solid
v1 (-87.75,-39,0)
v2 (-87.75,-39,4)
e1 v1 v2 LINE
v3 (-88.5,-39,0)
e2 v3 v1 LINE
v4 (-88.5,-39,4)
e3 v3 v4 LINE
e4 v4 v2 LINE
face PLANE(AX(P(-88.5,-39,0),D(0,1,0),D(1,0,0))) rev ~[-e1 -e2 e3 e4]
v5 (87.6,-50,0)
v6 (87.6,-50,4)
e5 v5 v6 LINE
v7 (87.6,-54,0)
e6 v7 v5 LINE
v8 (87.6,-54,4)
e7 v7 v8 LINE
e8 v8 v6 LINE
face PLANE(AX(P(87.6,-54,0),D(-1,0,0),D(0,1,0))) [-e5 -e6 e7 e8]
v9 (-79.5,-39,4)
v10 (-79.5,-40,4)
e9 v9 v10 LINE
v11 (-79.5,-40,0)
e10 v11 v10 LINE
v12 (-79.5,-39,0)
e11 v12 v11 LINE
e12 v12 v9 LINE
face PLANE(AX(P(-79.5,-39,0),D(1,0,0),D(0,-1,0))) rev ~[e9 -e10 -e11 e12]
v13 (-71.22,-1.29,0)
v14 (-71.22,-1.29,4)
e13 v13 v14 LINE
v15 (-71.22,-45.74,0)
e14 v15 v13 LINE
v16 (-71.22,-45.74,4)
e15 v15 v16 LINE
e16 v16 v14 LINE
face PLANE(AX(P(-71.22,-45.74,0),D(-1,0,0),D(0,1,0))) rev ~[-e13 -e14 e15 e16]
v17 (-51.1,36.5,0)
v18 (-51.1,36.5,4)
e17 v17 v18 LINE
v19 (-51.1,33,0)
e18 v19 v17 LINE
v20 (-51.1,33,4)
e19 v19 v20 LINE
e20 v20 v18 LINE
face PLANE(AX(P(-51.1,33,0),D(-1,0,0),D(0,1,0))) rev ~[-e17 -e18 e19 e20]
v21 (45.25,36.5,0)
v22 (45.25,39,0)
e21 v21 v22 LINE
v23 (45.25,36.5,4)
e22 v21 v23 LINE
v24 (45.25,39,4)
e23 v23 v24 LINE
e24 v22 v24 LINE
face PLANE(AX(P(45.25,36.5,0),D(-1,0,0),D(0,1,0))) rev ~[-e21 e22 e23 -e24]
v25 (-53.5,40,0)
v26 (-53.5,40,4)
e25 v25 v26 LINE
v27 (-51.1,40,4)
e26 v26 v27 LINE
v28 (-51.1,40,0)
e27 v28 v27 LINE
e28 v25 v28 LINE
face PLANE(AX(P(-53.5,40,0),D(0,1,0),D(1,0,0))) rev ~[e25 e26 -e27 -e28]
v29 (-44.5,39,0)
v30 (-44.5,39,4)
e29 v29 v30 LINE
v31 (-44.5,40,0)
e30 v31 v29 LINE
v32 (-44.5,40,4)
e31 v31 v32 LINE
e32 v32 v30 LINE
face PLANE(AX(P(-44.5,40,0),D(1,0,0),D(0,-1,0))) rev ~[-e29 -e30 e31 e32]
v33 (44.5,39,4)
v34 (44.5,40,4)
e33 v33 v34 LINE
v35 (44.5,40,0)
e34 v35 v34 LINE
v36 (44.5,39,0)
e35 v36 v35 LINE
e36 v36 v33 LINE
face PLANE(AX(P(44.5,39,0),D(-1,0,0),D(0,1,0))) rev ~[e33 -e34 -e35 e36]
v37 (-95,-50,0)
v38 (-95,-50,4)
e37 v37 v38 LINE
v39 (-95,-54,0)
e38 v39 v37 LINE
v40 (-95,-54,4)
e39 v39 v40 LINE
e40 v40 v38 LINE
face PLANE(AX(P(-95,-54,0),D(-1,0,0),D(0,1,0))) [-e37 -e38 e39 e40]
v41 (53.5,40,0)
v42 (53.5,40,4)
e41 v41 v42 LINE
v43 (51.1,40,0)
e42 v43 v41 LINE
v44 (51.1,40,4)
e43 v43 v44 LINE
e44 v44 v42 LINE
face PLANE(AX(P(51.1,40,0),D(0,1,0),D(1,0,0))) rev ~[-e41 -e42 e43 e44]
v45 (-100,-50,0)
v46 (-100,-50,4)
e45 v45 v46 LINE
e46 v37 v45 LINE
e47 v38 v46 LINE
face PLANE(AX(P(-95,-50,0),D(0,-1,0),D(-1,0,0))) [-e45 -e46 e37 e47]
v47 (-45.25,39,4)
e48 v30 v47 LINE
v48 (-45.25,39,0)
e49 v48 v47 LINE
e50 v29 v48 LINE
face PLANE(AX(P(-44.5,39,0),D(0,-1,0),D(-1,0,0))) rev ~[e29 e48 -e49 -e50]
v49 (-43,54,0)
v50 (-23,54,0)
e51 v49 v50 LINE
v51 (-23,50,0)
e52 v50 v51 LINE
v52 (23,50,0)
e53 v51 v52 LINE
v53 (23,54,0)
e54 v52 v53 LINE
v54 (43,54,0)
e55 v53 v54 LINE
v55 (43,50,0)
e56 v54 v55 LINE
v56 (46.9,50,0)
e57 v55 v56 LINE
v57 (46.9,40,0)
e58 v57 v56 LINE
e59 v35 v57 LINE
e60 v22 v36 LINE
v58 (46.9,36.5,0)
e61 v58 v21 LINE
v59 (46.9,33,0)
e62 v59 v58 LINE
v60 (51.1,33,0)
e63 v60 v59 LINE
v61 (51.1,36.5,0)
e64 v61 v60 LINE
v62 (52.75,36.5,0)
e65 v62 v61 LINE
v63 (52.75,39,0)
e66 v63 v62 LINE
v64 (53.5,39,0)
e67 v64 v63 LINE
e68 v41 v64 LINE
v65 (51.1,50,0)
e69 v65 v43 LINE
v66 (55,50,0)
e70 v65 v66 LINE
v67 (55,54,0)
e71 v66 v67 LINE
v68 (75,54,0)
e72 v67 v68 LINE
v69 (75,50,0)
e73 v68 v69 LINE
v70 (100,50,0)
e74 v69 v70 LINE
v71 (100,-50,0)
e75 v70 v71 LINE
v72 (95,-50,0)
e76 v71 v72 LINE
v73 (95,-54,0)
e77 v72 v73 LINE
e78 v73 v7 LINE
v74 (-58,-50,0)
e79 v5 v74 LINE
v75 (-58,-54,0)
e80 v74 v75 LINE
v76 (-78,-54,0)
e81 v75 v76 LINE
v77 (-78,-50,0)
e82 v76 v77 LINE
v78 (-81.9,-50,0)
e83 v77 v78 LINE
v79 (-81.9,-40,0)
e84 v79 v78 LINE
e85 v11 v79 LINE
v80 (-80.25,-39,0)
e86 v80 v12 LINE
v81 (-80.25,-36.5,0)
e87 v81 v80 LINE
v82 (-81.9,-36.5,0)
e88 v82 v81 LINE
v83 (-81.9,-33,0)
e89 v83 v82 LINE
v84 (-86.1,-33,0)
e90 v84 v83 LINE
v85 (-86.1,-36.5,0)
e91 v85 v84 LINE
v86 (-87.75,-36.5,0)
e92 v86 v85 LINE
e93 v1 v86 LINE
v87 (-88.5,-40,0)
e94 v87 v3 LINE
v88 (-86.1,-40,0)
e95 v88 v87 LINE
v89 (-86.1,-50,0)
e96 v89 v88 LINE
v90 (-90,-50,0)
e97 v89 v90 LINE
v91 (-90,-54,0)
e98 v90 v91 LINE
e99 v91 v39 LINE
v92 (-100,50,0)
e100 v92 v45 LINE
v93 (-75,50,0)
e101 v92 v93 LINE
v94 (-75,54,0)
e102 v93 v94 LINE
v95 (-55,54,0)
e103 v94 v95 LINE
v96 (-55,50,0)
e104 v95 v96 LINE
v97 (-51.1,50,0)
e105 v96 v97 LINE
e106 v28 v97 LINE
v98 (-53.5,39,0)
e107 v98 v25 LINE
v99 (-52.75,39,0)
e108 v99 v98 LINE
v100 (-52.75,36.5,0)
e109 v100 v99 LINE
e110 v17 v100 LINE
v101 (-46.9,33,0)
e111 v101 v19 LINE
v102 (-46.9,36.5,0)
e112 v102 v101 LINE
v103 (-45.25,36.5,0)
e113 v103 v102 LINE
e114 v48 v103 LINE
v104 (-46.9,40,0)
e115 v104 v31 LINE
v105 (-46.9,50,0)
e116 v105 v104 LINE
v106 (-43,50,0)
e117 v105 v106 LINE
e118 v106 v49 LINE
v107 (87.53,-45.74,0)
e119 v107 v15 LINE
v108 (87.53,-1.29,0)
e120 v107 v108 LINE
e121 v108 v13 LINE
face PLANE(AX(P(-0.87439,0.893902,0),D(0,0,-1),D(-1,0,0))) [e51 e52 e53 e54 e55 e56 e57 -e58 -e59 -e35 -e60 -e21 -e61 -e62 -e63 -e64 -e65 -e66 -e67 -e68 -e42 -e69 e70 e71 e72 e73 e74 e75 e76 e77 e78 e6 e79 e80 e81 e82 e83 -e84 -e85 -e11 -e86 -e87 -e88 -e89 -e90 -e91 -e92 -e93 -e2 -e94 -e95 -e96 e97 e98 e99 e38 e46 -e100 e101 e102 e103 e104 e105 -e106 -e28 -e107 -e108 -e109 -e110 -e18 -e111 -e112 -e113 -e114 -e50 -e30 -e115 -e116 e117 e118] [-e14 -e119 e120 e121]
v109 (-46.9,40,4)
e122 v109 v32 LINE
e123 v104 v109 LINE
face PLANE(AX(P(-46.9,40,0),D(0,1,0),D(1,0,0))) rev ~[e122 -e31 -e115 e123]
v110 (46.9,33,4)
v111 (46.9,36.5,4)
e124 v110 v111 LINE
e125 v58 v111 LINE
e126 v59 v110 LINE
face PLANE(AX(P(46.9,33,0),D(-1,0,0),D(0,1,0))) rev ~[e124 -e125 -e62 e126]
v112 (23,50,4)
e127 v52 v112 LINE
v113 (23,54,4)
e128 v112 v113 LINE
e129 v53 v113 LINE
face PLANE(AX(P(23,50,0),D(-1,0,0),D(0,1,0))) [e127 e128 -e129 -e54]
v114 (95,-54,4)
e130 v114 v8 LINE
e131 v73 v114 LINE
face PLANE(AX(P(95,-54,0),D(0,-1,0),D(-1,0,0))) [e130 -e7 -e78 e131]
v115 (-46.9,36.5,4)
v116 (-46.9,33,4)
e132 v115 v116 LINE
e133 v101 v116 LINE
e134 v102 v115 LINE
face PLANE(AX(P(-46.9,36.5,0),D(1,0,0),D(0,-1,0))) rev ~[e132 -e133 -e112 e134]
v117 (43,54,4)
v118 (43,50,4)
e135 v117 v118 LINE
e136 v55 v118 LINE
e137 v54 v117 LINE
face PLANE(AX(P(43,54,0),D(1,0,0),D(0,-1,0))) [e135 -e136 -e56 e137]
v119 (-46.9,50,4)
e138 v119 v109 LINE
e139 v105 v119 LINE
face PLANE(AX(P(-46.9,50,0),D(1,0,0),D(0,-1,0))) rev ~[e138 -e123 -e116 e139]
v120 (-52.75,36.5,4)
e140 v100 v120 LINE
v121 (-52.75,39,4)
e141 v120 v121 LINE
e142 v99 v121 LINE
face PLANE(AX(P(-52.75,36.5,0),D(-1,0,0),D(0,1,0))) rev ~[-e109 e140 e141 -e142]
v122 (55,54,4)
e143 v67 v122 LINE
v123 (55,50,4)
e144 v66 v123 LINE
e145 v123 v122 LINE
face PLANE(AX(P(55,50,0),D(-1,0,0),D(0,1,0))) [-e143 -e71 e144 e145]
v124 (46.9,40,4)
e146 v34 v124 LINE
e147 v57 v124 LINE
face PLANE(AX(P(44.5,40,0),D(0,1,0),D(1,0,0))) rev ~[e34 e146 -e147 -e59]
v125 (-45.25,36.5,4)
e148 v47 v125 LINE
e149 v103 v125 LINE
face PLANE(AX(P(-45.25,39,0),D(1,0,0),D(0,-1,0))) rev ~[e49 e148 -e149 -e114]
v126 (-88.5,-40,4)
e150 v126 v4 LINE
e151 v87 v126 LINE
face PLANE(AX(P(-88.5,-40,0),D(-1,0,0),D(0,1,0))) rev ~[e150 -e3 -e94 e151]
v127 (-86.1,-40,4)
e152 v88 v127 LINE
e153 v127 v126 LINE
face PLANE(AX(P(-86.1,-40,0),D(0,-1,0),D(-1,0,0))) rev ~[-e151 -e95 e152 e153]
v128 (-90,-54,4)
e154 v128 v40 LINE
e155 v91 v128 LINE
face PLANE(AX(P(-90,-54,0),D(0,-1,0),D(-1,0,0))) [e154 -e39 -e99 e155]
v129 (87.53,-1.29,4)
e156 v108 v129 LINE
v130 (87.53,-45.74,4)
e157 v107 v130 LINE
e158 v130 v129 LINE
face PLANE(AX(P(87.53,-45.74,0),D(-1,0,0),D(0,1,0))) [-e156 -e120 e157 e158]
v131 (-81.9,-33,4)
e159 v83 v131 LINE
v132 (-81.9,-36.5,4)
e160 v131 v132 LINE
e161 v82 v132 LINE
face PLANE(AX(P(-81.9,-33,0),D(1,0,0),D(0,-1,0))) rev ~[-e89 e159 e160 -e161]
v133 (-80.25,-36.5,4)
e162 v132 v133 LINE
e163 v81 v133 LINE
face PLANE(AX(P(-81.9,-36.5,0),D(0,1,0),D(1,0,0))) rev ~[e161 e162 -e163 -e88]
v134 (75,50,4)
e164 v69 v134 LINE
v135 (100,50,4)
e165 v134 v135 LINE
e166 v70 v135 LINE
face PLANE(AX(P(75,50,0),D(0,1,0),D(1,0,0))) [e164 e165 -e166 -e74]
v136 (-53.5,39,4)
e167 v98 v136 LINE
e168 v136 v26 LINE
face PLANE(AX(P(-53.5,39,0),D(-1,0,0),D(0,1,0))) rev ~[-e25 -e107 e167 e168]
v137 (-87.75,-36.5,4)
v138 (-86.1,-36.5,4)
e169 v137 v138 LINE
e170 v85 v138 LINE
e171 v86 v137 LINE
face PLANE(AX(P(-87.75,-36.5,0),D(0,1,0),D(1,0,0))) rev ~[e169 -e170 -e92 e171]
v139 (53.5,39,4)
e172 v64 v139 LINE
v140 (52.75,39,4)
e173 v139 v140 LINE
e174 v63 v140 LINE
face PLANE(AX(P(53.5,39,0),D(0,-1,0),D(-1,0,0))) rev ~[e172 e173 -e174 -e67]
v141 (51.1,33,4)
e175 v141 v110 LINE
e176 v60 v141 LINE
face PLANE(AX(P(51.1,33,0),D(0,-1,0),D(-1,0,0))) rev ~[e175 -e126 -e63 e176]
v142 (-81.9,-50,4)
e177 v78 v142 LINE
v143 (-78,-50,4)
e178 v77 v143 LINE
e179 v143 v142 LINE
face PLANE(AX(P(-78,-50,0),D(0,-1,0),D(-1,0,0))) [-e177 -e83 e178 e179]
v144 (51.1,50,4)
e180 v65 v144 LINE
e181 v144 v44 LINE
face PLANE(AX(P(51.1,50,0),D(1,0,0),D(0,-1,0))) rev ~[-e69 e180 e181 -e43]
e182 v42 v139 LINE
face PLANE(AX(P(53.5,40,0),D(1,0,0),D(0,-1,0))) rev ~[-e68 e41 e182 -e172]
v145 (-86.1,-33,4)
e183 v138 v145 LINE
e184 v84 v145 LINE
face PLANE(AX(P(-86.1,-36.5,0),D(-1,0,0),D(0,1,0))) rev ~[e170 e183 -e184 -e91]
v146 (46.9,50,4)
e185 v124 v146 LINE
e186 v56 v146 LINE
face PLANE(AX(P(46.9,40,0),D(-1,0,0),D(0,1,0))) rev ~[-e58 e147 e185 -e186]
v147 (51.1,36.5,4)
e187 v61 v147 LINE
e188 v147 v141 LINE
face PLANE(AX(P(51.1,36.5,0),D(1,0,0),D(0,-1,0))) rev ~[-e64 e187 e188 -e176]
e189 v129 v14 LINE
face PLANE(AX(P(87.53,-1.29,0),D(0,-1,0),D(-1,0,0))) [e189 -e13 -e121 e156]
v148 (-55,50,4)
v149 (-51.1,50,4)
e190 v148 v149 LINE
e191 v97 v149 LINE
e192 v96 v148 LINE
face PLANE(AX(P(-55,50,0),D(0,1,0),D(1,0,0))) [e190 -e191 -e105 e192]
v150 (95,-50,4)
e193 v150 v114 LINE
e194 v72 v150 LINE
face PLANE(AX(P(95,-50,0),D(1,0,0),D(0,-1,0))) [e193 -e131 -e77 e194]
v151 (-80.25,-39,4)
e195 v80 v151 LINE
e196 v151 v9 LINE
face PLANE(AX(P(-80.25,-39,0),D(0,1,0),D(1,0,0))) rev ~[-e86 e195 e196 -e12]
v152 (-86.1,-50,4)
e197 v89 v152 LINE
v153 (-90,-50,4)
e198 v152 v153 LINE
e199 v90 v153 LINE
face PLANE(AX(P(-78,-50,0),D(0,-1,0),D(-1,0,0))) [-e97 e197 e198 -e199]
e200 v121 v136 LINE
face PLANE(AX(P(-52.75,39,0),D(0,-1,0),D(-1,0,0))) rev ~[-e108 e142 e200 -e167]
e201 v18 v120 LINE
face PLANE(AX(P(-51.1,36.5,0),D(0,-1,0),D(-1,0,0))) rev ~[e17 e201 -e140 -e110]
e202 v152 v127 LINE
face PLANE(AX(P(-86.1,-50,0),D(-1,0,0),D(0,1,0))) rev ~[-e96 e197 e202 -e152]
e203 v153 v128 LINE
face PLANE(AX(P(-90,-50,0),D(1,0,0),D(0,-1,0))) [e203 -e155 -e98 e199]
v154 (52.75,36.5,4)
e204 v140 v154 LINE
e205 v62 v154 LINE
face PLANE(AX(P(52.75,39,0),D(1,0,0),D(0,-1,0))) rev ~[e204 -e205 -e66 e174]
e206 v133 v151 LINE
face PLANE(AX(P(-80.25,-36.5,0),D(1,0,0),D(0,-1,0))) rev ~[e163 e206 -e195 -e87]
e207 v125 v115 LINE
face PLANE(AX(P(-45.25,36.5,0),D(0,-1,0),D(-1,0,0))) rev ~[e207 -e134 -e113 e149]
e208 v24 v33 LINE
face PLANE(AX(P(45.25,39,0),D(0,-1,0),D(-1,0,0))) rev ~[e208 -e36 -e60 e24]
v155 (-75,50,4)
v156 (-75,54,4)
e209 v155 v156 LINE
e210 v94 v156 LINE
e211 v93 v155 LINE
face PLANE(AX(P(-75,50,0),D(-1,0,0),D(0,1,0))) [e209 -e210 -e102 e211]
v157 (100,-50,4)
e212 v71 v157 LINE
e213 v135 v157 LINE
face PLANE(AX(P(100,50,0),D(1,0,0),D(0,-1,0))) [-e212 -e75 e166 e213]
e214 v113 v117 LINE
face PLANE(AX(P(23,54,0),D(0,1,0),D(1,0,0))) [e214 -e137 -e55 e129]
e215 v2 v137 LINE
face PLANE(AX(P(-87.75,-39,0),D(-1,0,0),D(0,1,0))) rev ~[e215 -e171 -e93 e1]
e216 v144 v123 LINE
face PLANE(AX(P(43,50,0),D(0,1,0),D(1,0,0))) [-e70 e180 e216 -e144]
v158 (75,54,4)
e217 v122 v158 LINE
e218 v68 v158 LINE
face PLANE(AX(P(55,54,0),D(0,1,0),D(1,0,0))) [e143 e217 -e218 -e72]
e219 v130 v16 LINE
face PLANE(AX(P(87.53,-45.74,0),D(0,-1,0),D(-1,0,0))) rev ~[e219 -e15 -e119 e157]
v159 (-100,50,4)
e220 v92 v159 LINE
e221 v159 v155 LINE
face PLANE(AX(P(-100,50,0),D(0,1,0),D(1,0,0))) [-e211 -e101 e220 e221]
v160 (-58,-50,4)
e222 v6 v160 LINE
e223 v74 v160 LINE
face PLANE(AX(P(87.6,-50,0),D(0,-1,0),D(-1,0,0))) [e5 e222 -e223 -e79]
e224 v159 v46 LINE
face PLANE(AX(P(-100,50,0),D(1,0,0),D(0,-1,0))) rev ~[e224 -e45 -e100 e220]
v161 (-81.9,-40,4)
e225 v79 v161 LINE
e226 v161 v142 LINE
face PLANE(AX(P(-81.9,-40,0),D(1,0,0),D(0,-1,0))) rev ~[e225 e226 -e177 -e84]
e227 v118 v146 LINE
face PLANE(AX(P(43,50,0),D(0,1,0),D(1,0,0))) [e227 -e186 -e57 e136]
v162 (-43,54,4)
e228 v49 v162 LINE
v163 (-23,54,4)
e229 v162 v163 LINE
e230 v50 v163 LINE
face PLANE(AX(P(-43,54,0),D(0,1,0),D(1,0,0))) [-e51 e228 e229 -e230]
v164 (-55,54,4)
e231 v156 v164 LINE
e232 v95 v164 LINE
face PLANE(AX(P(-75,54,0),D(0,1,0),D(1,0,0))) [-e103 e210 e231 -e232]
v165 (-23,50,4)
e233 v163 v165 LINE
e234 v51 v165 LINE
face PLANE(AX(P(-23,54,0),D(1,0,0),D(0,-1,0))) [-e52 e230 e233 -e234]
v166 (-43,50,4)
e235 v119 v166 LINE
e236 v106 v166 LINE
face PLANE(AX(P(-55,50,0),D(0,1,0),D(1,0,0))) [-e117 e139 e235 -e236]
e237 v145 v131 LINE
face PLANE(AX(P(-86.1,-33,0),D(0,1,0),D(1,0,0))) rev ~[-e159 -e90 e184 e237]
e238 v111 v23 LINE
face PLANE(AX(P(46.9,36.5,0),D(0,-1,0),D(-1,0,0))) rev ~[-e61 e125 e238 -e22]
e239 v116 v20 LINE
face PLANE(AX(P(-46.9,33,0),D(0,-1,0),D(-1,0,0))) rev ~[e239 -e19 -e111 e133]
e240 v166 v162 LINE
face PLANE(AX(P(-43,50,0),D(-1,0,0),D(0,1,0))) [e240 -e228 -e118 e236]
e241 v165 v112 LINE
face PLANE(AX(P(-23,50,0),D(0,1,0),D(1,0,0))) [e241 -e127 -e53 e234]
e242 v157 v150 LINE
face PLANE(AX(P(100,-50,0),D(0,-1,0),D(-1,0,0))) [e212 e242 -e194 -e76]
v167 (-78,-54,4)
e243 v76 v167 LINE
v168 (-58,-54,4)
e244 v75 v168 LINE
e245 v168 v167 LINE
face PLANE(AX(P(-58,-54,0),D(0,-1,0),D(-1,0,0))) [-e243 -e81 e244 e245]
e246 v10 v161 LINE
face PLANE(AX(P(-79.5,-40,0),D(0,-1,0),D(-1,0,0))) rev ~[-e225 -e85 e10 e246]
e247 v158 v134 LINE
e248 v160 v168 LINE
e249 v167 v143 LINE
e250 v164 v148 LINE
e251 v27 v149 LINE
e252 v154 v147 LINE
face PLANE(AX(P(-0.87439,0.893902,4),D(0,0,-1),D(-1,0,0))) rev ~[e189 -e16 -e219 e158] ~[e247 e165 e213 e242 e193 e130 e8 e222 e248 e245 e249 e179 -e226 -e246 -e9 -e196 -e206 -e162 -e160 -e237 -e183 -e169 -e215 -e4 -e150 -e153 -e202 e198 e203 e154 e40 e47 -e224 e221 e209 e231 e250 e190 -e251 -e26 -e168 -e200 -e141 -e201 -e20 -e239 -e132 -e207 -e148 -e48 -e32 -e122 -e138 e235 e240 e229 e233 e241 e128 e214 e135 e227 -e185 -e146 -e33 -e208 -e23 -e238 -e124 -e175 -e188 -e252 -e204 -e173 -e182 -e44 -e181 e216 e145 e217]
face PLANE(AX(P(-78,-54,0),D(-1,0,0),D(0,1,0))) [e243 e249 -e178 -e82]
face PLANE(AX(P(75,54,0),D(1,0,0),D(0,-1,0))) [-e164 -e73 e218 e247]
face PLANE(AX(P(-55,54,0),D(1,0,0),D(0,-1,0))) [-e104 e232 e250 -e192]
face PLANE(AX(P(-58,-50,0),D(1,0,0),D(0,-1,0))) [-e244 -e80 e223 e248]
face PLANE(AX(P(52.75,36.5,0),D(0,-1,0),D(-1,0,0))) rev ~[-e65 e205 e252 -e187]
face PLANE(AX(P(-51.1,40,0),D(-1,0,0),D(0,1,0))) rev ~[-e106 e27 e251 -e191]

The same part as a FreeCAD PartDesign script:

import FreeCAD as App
import Part
import Sketcher
from FreeCAD import Vector

doc = App.newDocument("Part")
params = doc.addObject("Spreadsheet::Sheet", "Params")
for row, (alias, value) in enumerate([
    ("sketch1_width", "12 mm"),
    ("sketch1_width2", "20 mm"),
    ("sketch1_width3", "25 mm"),
    ("sketch1_width4", "10 mm"),
    ("sketch1_width5", "5 mm"),
    ("pad1_length", "4 mm"),
    ("sketch2_width", "158.75 mm"),
    ("sketch2_height", "44.45 mm"),
    ("pocket1_length", "6 mm"),
    ("sketch3_height", "10 mm"),
    ("sketch3_height2", "1 mm"),
    ("sketch3_width", "4.2 mm"),
    ("sketch3_width2", "2.4 mm"),
    ("sketch3_height3", "2.5 mm"),
    ("pocket2_length", "10 mm"),
    ("sketch4_width", "5 mm"),
    ("sketch4_height", "4 mm"),
    ("pocket3_length", "10 mm"),
], start=1):
    params.set(f"A{row}", alias)
    params.set(f"B{row}", "=" + value)
    params.setAlias(f"B{row}", alias)

body = doc.addObject("PartDesign::Body", "Body")

# Sketch on XY plane
sketch1 = body.newObject("Sketcher::SketchObject", "Sketch")
sketch1.AttachmentSupport = (doc.getObject("XY_Plane"), [""])
sketch1.MapMode = "FlatFace"
sketch1.addGeometry(Part.LineSegment(Vector(-43, 50, 0), Vector(-55, 50, 0)), False)
sketch1.addGeometry(Part.LineSegment(Vector(-55, 50, 0), Vector(-55, 54, 0)), False)
sketch1.addGeometry(Part.LineSegment(Vector(-55, 54, 0), Vector(-75, 54, 0)), False)
sketch1.addGeometry(Part.LineSegment(Vector(-75, 54, 0), Vector(-75, 50, 0)), False)
sketch1.addGeometry(Part.LineSegment(Vector(-75, 50, 0), Vector(-100, 50, 0)), False)
sketch1.addGeometry(Part.LineSegment(Vector(-100, 50, 0), Vector(-100, -54, 0)), False)
sketch1.addGeometry(Part.LineSegment(Vector(-100, -54, 0), Vector(-90, -54, 0)), False)
sketch1.addGeometry(Part.LineSegment(Vector(-90, -54, 0), Vector(-90, -50, 0)), False)
sketch1.addGeometry(Part.LineSegment(Vector(-90, -50, 0), Vector(-78, -50, 0)), False)
sketch1.addGeometry(Part.LineSegment(Vector(-78, -50, 0), Vector(-78, -54, 0)), False)
sketch1.addGeometry(Part.LineSegment(Vector(-78, -54, 0), Vector(-58, -54, 0)), False)
sketch1.addGeometry(Part.LineSegment(Vector(-58, -54, 0), Vector(-58, -50, 0)), False)
sketch1.addGeometry(Part.LineSegment(Vector(-58, -50, 0), Vector(87.6, -50, 0)), False)
sketch1.addGeometry(Part.LineSegment(Vector(87.6, -50, 0), Vector(87.6, -54, 0)), False)
sketch1.addGeometry(Part.LineSegment(Vector(87.6, -54, 0), Vector(95, -54, 0)), False)
sketch1.addGeometry(Part.LineSegment(Vector(95, -54, 0), Vector(95, -50, 0)), False)
sketch1.addGeometry(Part.LineSegment(Vector(95, -50, 0), Vector(100, -50, 0)), False)
sketch1.addGeometry(Part.LineSegment(Vector(100, -50, 0), Vector(100, 50, 0)), False)
sketch1.addGeometry(Part.LineSegment(Vector(100, 50, 0), Vector(75, 50, 0)), False)
sketch1.addGeometry(Part.LineSegment(Vector(75, 50, 0), Vector(75, 54, 0)), False)
sketch1.addGeometry(Part.LineSegment(Vector(75, 54, 0), Vector(55, 54, 0)), False)
sketch1.addGeometry(Part.LineSegment(Vector(55, 54, 0), Vector(55, 50, 0)), False)
sketch1.addGeometry(Part.LineSegment(Vector(55, 50, 0), Vector(43, 50, 0)), False)
sketch1.addGeometry(Part.LineSegment(Vector(43, 50, 0), Vector(43, 54, 0)), False)
sketch1.addGeometry(Part.LineSegment(Vector(43, 54, 0), Vector(23, 54, 0)), False)
sketch1.addGeometry(Part.LineSegment(Vector(23, 54, 0), Vector(23, 50, 0)), False)
sketch1.addGeometry(Part.LineSegment(Vector(23, 50, 0), Vector(-23, 50, 0)), False)
sketch1.addGeometry(Part.LineSegment(Vector(-23, 50, 0), Vector(-23, 54, 0)), False)
sketch1.addGeometry(Part.LineSegment(Vector(-23, 54, 0), Vector(-43, 54, 0)), False)
sketch1.addGeometry(Part.LineSegment(Vector(-43, 54, 0), Vector(-43, 50, 0)), False)
sketch1.addConstraint(Sketcher.Constraint("Coincident", 0, 2, 1, 1))
sketch1.addConstraint(Sketcher.Constraint("Coincident", 1, 2, 2, 1))
sketch1.addConstraint(Sketcher.Constraint("Coincident", 2, 2, 3, 1))
sketch1.addConstraint(Sketcher.Constraint("Coincident", 3, 2, 4, 1))
sketch1.addConstraint(Sketcher.Constraint("Coincident", 4, 2, 5, 1))
sketch1.addConstraint(Sketcher.Constraint("Coincident", 5, 2, 6, 1))
sketch1.addConstraint(Sketcher.Constraint("Coincident", 6, 2, 7, 1))
sketch1.addConstraint(Sketcher.Constraint("Coincident", 7, 2, 8, 1))
sketch1.addConstraint(Sketcher.Constraint("Coincident", 8, 2, 9, 1))
sketch1.addConstraint(Sketcher.Constraint("Coincident", 9, 2, 10, 1))
sketch1.addConstraint(Sketcher.Constraint("Coincident", 10, 2, 11, 1))
sketch1.addConstraint(Sketcher.Constraint("Coincident", 11, 2, 12, 1))
sketch1.addConstraint(Sketcher.Constraint("Coincident", 12, 2, 13, 1))
sketch1.addConstraint(Sketcher.Constraint("Coincident", 13, 2, 14, 1))
sketch1.addConstraint(Sketcher.Constraint("Coincident", 14, 2, 15, 1))
sketch1.addConstraint(Sketcher.Constraint("Coincident", 15, 2, 16, 1))
sketch1.addConstraint(Sketcher.Constraint("Coincident", 16, 2, 17, 1))
sketch1.addConstraint(Sketcher.Constraint("Coincident", 17, 2, 18, 1))
sketch1.addConstraint(Sketcher.Constraint("Coincident", 18, 2, 19, 1))
sketch1.addConstraint(Sketcher.Constraint("Coincident", 19, 2, 20, 1))
sketch1.addConstraint(Sketcher.Constraint("Coincident", 20, 2, 21, 1))
sketch1.addConstraint(Sketcher.Constraint("Coincident", 21, 2, 22, 1))
sketch1.addConstraint(Sketcher.Constraint("Coincident", 22, 2, 23, 1))
sketch1.addConstraint(Sketcher.Constraint("Coincident", 23, 2, 24, 1))
sketch1.addConstraint(Sketcher.Constraint("Coincident", 24, 2, 25, 1))
sketch1.addConstraint(Sketcher.Constraint("Coincident", 25, 2, 26, 1))
sketch1.addConstraint(Sketcher.Constraint("Coincident", 26, 2, 27, 1))
sketch1.addConstraint(Sketcher.Constraint("Coincident", 27, 2, 28, 1))
sketch1.addConstraint(Sketcher.Constraint("Coincident", 28, 2, 29, 1))
sketch1.addConstraint(Sketcher.Constraint("Coincident", 29, 2, 0, 1))
sketch1.addConstraint(Sketcher.Constraint("Horizontal", 0))
sketch1.addConstraint(Sketcher.Constraint("Vertical", 1))
sketch1.addConstraint(Sketcher.Constraint("Horizontal", 2))
sketch1.addConstraint(Sketcher.Constraint("Vertical", 3))
sketch1.addConstraint(Sketcher.Constraint("Horizontal", 4))
sketch1.addConstraint(Sketcher.Constraint("Vertical", 5))
sketch1.addConstraint(Sketcher.Constraint("Horizontal", 6))
sketch1.addConstraint(Sketcher.Constraint("Vertical", 7))
sketch1.addConstraint(Sketcher.Constraint("Horizontal", 8))
sketch1.addConstraint(Sketcher.Constraint("Vertical", 9))
sketch1.addConstraint(Sketcher.Constraint("Horizontal", 10))
sketch1.addConstraint(Sketcher.Constraint("Vertical", 11))
sketch1.addConstraint(Sketcher.Constraint("Horizontal", 12))
sketch1.addConstraint(Sketcher.Constraint("Vertical", 13))
sketch1.addConstraint(Sketcher.Constraint("Horizontal", 14))
sketch1.addConstraint(Sketcher.Constraint("Vertical", 15))
sketch1.addConstraint(Sketcher.Constraint("Horizontal", 16))
sketch1.addConstraint(Sketcher.Constraint("Vertical", 17))
sketch1.addConstraint(Sketcher.Constraint("Horizontal", 18))
sketch1.addConstraint(Sketcher.Constraint("Vertical", 19))
sketch1.addConstraint(Sketcher.Constraint("Horizontal", 20))
sketch1.addConstraint(Sketcher.Constraint("Vertical", 21))
sketch1.addConstraint(Sketcher.Constraint("Horizontal", 22))
sketch1.addConstraint(Sketcher.Constraint("Vertical", 23))
sketch1.addConstraint(Sketcher.Constraint("Horizontal", 24))
sketch1.addConstraint(Sketcher.Constraint("Vertical", 25))
sketch1.addConstraint(Sketcher.Constraint("Horizontal", 26))
sketch1.addConstraint(Sketcher.Constraint("Vertical", 27))
sketch1.addConstraint(Sketcher.Constraint("Horizontal", 28))
sketch1.addConstraint(Sketcher.Constraint("Vertical", 29))
sketch1.addConstraint(Sketcher.Constraint("Symmetric", 4, 2, 16, 2, -1, 1))
sketch1.addConstraint(Sketcher.Constraint("Symmetric", 3, 2, 18, 2, -2))
sketch1.addConstraint(Sketcher.Constraint("Symmetric", 1, 2, 20, 2, -2))
sketch1.addConstraint(Sketcher.Constraint("Symmetric", 24, 2, 27, 2, -2))
sketch1.addConstraint(Sketcher.Constraint("Symmetric", 22, 2, 29, 2, -2))
sketch1.addConstraint(Sketcher.Constraint("Horizontal", 0, 2, 3, 2))
sketch1.addConstraint(Sketcher.Constraint("Horizontal", 6, 2, 9, 2))
sketch1.addConstraint(Sketcher.Constraint("Horizontal", 8, 2, 11, 2))
sketch1.addConstraint(Sketcher.Constraint("Horizontal", 10, 2, 13, 2))
sketch1.addConstraint(Sketcher.Constraint("Horizontal", 12, 2, 15, 2))
sketch1.addConstraint(Sketcher.Constraint("Horizontal", 20, 2, 23, 2))
sketch1.addConstraint(Sketcher.Constraint("Horizontal", 22, 2, 25, 2))
sketch1.addConstraint(Sketcher.Constraint("Equal", 0, 8))
sketch1.addConstraint(Sketcher.Constraint("Equal", 2, 10))
sketch1.addConstraint(Sketcher.Constraint("Equal", 20, 24))
sketch1.addConstraint(Sketcher.Constraint("Equal", 3, 7))
sketch1.addConstraint(Sketcher.Constraint("DistanceX", 0, 2, 0, 1, 12.0))
sketch1.addConstraint(Sketcher.Constraint("DistanceX", 2, 2, 2, 1, 20.0))
sketch1.addConstraint(Sketcher.Constraint("DistanceX", 4, 2, 4, 1, 25.0))
sketch1.addConstraint(Sketcher.Constraint("DistanceX", 6, 1, 6, 2, 10.0))
sketch1.addConstraint(Sketcher.Constraint("DistanceX", 16, 1, 16, 2, 5.0))
sketch1.addConstraint(Sketcher.Constraint("DistanceX", 26, 2, 26, 1, 46.0))
sketch1.addConstraint(Sketcher.Constraint("DistanceY", 1, 1, 1, 2, 4.0))
sketch1.addConstraint(Sketcher.Constraint("DistanceY", 5, 2, 5, 1, 104.0))
sketch1.addConstraint(Sketcher.Constraint("DistanceX", 12, 1, 12, 2, 145.6))
sketch1.setExpression("Constraints[76]", "Params.sketch1_width")
sketch1.setExpression("Constraints[77]", "Params.sketch1_width2")
sketch1.setExpression("Constraints[78]", "Params.sketch1_width3")
sketch1.setExpression("Constraints[79]", "Params.sketch1_width4")
sketch1.setExpression("Constraints[80]", "Params.sketch1_width5")
pad1 = body.newObject("PartDesign::Pad", "Pad")
pad1.Profile = sketch1
pad1.setExpression("Length", "Params.pad1_length")

# Sketch on XY plane
sketch2 = body.newObject("Sketcher::SketchObject", "Sketch001")
sketch2.AttachmentSupport = (doc.getObject("XY_Plane"), [""])
sketch2.MapMode = "FlatFace"
sketch2.addGeometry(Part.LineSegment(Vector(88, -1, 0), Vector(88, -46, 0)), False)
sketch2.addGeometry(Part.LineSegment(Vector(88, -46, 0), Vector(-71, -46, 0)), False)
sketch2.addGeometry(Part.LineSegment(Vector(-71, -46, 0), Vector(-71, -1, 0)), False)
sketch2.addGeometry(Part.LineSegment(Vector(-71, -1, 0), Vector(88, -1, 0)), False)
sketch2.addConstraint(Sketcher.Constraint("Coincident", 0, 2, 1, 1))
sketch2.addConstraint(Sketcher.Constraint("Coincident", 1, 2, 2, 1))
sketch2.addConstraint(Sketcher.Constraint("Coincident", 2, 2, 3, 1))
sketch2.addConstraint(Sketcher.Constraint("Coincident", 3, 2, 0, 1))
sketch2.addConstraint(Sketcher.Constraint("Vertical", 0))
sketch2.addConstraint(Sketcher.Constraint("Horizontal", 1))
sketch2.addConstraint(Sketcher.Constraint("Vertical", 2))
sketch2.addConstraint(Sketcher.Constraint("Horizontal", 3))
sketch2.addConstraint(Sketcher.Constraint("DistanceX", 1, 2, 1, 1, 158.75))
sketch2.addConstraint(Sketcher.Constraint("DistanceY", 0, 2, 0, 1, 44.45))
sketch2.addConstraint(Sketcher.Constraint("DistanceX", -1, 1, 0, 2, 87.53))
sketch2.addConstraint(Sketcher.Constraint("DistanceY", 0, 2, -1, 1, 45.74))
sketch2.setExpression("Constraints[8]", "Params.sketch2_width")
sketch2.setExpression("Constraints[9]", "Params.sketch2_height")
pocket1 = body.newObject("PartDesign::Pocket", "Pocket")
pocket1.Profile = sketch2
pocket1.setExpression("Length", "Params.pocket1_length")
pocket1.Reversed = True

# Sketch on XY plane
sketch3 = body.newObject("Sketcher::SketchObject", "Sketch002")
sketch3.AttachmentSupport = (doc.getObject("XY_Plane"), [""])
sketch3.MapMode = "FlatFace"
sketch3.addGeometry(Part.LineSegment(Vector(46.9, 50, 0), Vector(51.1, 50, 0)), False)
sketch3.addGeometry(Part.LineSegment(Vector(51.1, 50, 0), Vector(51.1, 40, 0)), False)
sketch3.addGeometry(Part.LineSegment(Vector(51.1, 40, 0), Vector(53.5, 40, 0)), False)
sketch3.addGeometry(Part.LineSegment(Vector(53.5, 40, 0), Vector(53.5, 39, 0)), False)
sketch3.addGeometry(Part.LineSegment(Vector(53.5, 39, 0), Vector(52.8, 39, 0)), False)
sketch3.addGeometry(Part.LineSegment(Vector(52.8, 39, 0), Vector(52.8, 36.5, 0)), False)
sketch3.addGeometry(Part.LineSegment(Vector(52.8, 36.5, 0), Vector(51.1, 36.5, 0)), False)
sketch3.addGeometry(Part.LineSegment(Vector(51.1, 36.5, 0), Vector(51.1, 33, 0)), False)
sketch3.addGeometry(Part.LineSegment(Vector(51.1, 33, 0), Vector(46.9, 33, 0)), False)
sketch3.addGeometry(Part.LineSegment(Vector(46.9, 33, 0), Vector(46.9, 36.5, 0)), False)
sketch3.addGeometry(Part.LineSegment(Vector(46.9, 36.5, 0), Vector(45.2, 36.5, 0)), False)
sketch3.addGeometry(Part.LineSegment(Vector(45.2, 36.5, 0), Vector(45.2, 39, 0)), False)
sketch3.addGeometry(Part.LineSegment(Vector(45.2, 39, 0), Vector(44.5, 39, 0)), False)
sketch3.addGeometry(Part.LineSegment(Vector(44.5, 39, 0), Vector(44.5, 40, 0)), False)
sketch3.addGeometry(Part.LineSegment(Vector(44.5, 40, 0), Vector(46.9, 40, 0)), False)
sketch3.addGeometry(Part.LineSegment(Vector(46.9, 40, 0), Vector(46.9, 50, 0)), False)
sketch3.addGeometry(Part.LineSegment(Vector(-51.1, 40, 0), Vector(-51.1, 50, 0)), False)
sketch3.addGeometry(Part.LineSegment(Vector(-51.1, 50, 0), Vector(-46.9, 50, 0)), False)
sketch3.addGeometry(Part.LineSegment(Vector(-46.9, 50, 0), Vector(-46.9, 40, 0)), False)
sketch3.addGeometry(Part.LineSegment(Vector(-46.9, 40, 0), Vector(-44.5, 40, 0)), False)
sketch3.addGeometry(Part.LineSegment(Vector(-44.5, 40, 0), Vector(-44.5, 39, 0)), False)
sketch3.addGeometry(Part.LineSegment(Vector(-44.5, 39, 0), Vector(-45.2, 39, 0)), False)
sketch3.addGeometry(Part.LineSegment(Vector(-45.2, 39, 0), Vector(-45.2, 36.5, 0)), False)
sketch3.addGeometry(Part.LineSegment(Vector(-45.2, 36.5, 0), Vector(-46.9, 36.5, 0)), False)
sketch3.addGeometry(Part.LineSegment(Vector(-46.9, 36.5, 0), Vector(-46.9, 33, 0)), False)
sketch3.addGeometry(Part.LineSegment(Vector(-46.9, 33, 0), Vector(-51.1, 33, 0)), False)
sketch3.addGeometry(Part.LineSegment(Vector(-51.1, 33, 0), Vector(-51.1, 36.5, 0)), False)
sketch3.addGeometry(Part.LineSegment(Vector(-51.1, 36.5, 0), Vector(-52.8, 36.5, 0)), False)
sketch3.addGeometry(Part.LineSegment(Vector(-52.8, 36.5, 0), Vector(-52.8, 39, 0)), False)
sketch3.addGeometry(Part.LineSegment(Vector(-52.8, 39, 0), Vector(-53.5, 39, 0)), False)
sketch3.addGeometry(Part.LineSegment(Vector(-53.5, 39, 0), Vector(-53.5, 40, 0)), False)
sketch3.addGeometry(Part.LineSegment(Vector(-53.5, 40, 0), Vector(-51.1, 40, 0)), False)
sketch3.addGeometry(Part.LineSegment(Vector(-81.9, -40, 0), Vector(-81.9, -50, 0)), False)
sketch3.addGeometry(Part.LineSegment(Vector(-81.9, -50, 0), Vector(-86.1, -50, 0)), False)
sketch3.addGeometry(Part.LineSegment(Vector(-86.1, -50, 0), Vector(-86.1, -40, 0)), False)
sketch3.addGeometry(Part.LineSegment(Vector(-86.1, -40, 0), Vector(-88.5, -40, 0)), False)
sketch3.addGeometry(Part.LineSegment(Vector(-88.5, -40, 0), Vector(-88.5, -39, 0)), False)
sketch3.addGeometry(Part.LineSegment(Vector(-88.5, -39, 0), Vector(-87.8, -39, 0)), False)
sketch3.addGeometry(Part.LineSegment(Vector(-87.8, -39, 0), Vector(-87.8, -36.5, 0)), False)
sketch3.addGeometry(Part.LineSegment(Vector(-87.8, -36.5, 0), Vector(-86.1, -36.5, 0)), False)
sketch3.addGeometry(Part.LineSegment(Vector(-86.1, -36.5, 0), Vector(-86.1, -33, 0)), False)
sketch3.addGeometry(Part.LineSegment(Vector(-86.1, -33, 0), Vector(-81.9, -33, 0)), False)
sketch3.addGeometry(Part.LineSegment(Vector(-81.9, -33, 0), Vector(-81.9, -36.5, 0)), False)
sketch3.addGeometry(Part.LineSegment(Vector(-81.9, -36.5, 0), Vector(-80.2, -36.5, 0)), False)
sketch3.addGeometry(Part.LineSegment(Vector(-80.2, -36.5, 0), Vector(-80.2, -39, 0)), False)
sketch3.addGeometry(Part.LineSegment(Vector(-80.2, -39, 0), Vector(-79.5, -39, 0)), False)
sketch3.addGeometry(Part.LineSegment(Vector(-79.5, -39, 0), Vector(-79.5, -40, 0)), False)
sketch3.addGeometry(Part.LineSegment(Vector(-79.5, -40, 0), Vector(-81.9, -40, 0)), False)
sketch3.addConstraint(Sketcher.Constraint("Coincident", 0, 2, 1, 1))
sketch3.addConstraint(Sketcher.Constraint("Coincident", 1, 2, 2, 1))
sketch3.addConstraint(Sketcher.Constraint("Coincident", 2, 2, 3, 1))
sketch3.addConstraint(Sketcher.Constraint("Coincident", 3, 2, 4, 1))
sketch3.addConstraint(Sketcher.Constraint("Coincident", 4, 2, 5, 1))
sketch3.addConstraint(Sketcher.Constraint("Coincident", 5, 2, 6, 1))
sketch3.addConstraint(Sketcher.Constraint("Coincident", 6, 2, 7, 1))
sketch3.addConstraint(Sketcher.Constraint("Coincident", 7, 2, 8, 1))
sketch3.addConstraint(Sketcher.Constraint("Coincident", 8, 2, 9, 1))
sketch3.addConstraint(Sketcher.Constraint("Coincident", 9, 2, 10, 1))
sketch3.addConstraint(Sketcher.Constraint("Coincident", 10, 2, 11, 1))
sketch3.addConstraint(Sketcher.Constraint("Coincident", 11, 2, 12, 1))
sketch3.addConstraint(Sketcher.Constraint("Coincident", 12, 2, 13, 1))
sketch3.addConstraint(Sketcher.Constraint("Coincident", 13, 2, 14, 1))
sketch3.addConstraint(Sketcher.Constraint("Coincident", 14, 2, 15, 1))
sketch3.addConstraint(Sketcher.Constraint("Coincident", 15, 2, 0, 1))
sketch3.addConstraint(Sketcher.Constraint("Coincident", 16, 2, 17, 1))
sketch3.addConstraint(Sketcher.Constraint("Coincident", 17, 2, 18, 1))
sketch3.addConstraint(Sketcher.Constraint("Coincident", 18, 2, 19, 1))
sketch3.addConstraint(Sketcher.Constraint("Coincident", 19, 2, 20, 1))
sketch3.addConstraint(Sketcher.Constraint("Coincident", 20, 2, 21, 1))
sketch3.addConstraint(Sketcher.Constraint("Coincident", 21, 2, 22, 1))
sketch3.addConstraint(Sketcher.Constraint("Coincident", 22, 2, 23, 1))
sketch3.addConstraint(Sketcher.Constraint("Coincident", 23, 2, 24, 1))
sketch3.addConstraint(Sketcher.Constraint("Coincident", 24, 2, 25, 1))
sketch3.addConstraint(Sketcher.Constraint("Coincident", 25, 2, 26, 1))
sketch3.addConstraint(Sketcher.Constraint("Coincident", 26, 2, 27, 1))
sketch3.addConstraint(Sketcher.Constraint("Coincident", 27, 2, 28, 1))
sketch3.addConstraint(Sketcher.Constraint("Coincident", 28, 2, 29, 1))
sketch3.addConstraint(Sketcher.Constraint("Coincident", 29, 2, 30, 1))
sketch3.addConstraint(Sketcher.Constraint("Coincident", 30, 2, 31, 1))
sketch3.addConstraint(Sketcher.Constraint("Coincident", 31, 2, 16, 1))
sketch3.addConstraint(Sketcher.Constraint("Coincident", 32, 2, 33, 1))
sketch3.addConstraint(Sketcher.Constraint("Coincident", 33, 2, 34, 1))
sketch3.addConstraint(Sketcher.Constraint("Coincident", 34, 2, 35, 1))
sketch3.addConstraint(Sketcher.Constraint("Coincident", 35, 2, 36, 1))
sketch3.addConstraint(Sketcher.Constraint("Coincident", 36, 2, 37, 1))
sketch3.addConstraint(Sketcher.Constraint("Coincident", 37, 2, 38, 1))
sketch3.addConstraint(Sketcher.Constraint("Coincident", 38, 2, 39, 1))
sketch3.addConstraint(Sketcher.Constraint("Coincident", 39, 2, 40, 1))
sketch3.addConstraint(Sketcher.Constraint("Coincident", 40, 2, 41, 1))
sketch3.addConstraint(Sketcher.Constraint("Coincident", 41, 2, 42, 1))
sketch3.addConstraint(Sketcher.Constraint("Coincident", 42, 2, 43, 1))
sketch3.addConstraint(Sketcher.Constraint("Coincident", 43, 2, 44, 1))
sketch3.addConstraint(Sketcher.Constraint("Coincident", 44, 2, 45, 1))
sketch3.addConstraint(Sketcher.Constraint("Coincident", 45, 2, 46, 1))
sketch3.addConstraint(Sketcher.Constraint("Coincident", 46, 2, 47, 1))
sketch3.addConstraint(Sketcher.Constraint("Coincident", 47, 2, 32, 1))
sketch3.addConstraint(Sketcher.Constraint("Horizontal", 0))
sketch3.addConstraint(Sketcher.Constraint("Vertical", 1))
sketch3.addConstraint(Sketcher.Constraint("Horizontal", 2))
sketch3.addConstraint(Sketcher.Constraint("Vertical", 3))
sketch3.addConstraint(Sketcher.Constraint("Horizontal", 4))
sketch3.addConstraint(Sketcher.Constraint("Vertical", 5))
sketch3.addConstraint(Sketcher.Constraint("Horizontal", 6))
sketch3.addConstraint(Sketcher.Constraint("Vertical", 7))
sketch3.addConstraint(Sketcher.Constraint("Horizontal", 8))
sketch3.addConstraint(Sketcher.Constraint("Vertical", 9))
sketch3.addConstraint(Sketcher.Constraint("Horizontal", 10))
sketch3.addConstraint(Sketcher.Constraint("Vertical", 11))
sketch3.addConstraint(Sketcher.Constraint("Horizontal", 12))
sketch3.addConstraint(Sketcher.Constraint("Vertical", 13))
sketch3.addConstraint(Sketcher.Constraint("Horizontal", 14))
sketch3.addConstraint(Sketcher.Constraint("Vertical", 15))
sketch3.addConstraint(Sketcher.Constraint("Vertical", 16))
sketch3.addConstraint(Sketcher.Constraint("Horizontal", 17))
sketch3.addConstraint(Sketcher.Constraint("Vertical", 18))
sketch3.addConstraint(Sketcher.Constraint("Horizontal", 19))
sketch3.addConstraint(Sketcher.Constraint("Vertical", 20))
sketch3.addConstraint(Sketcher.Constraint("Horizontal", 21))
sketch3.addConstraint(Sketcher.Constraint("Vertical", 22))
sketch3.addConstraint(Sketcher.Constraint("Horizontal", 23))
sketch3.addConstraint(Sketcher.Constraint("Vertical", 24))
sketch3.addConstraint(Sketcher.Constraint("Horizontal", 25))
sketch3.addConstraint(Sketcher.Constraint("Vertical", 26))
sketch3.addConstraint(Sketcher.Constraint("Horizontal", 27))
sketch3.addConstraint(Sketcher.Constraint("Vertical", 28))
sketch3.addConstraint(Sketcher.Constraint("Horizontal", 29))
sketch3.addConstraint(Sketcher.Constraint("Vertical", 30))
sketch3.addConstraint(Sketcher.Constraint("Horizontal", 31))
sketch3.addConstraint(Sketcher.Constraint("Vertical", 32))
sketch3.addConstraint(Sketcher.Constraint("Horizontal", 33))
sketch3.addConstraint(Sketcher.Constraint("Vertical", 34))
sketch3.addConstraint(Sketcher.Constraint("Horizontal", 35))
sketch3.addConstraint(Sketcher.Constraint("Vertical", 36))
sketch3.addConstraint(Sketcher.Constraint("Horizontal", 37))
sketch3.addConstraint(Sketcher.Constraint("Vertical", 38))
sketch3.addConstraint(Sketcher.Constraint("Horizontal", 39))
sketch3.addConstraint(Sketcher.Constraint("Vertical", 40))
sketch3.addConstraint(Sketcher.Constraint("Horizontal", 41))
sketch3.addConstraint(Sketcher.Constraint("Vertical", 42))
sketch3.addConstraint(Sketcher.Constraint("Horizontal", 43))
sketch3.addConstraint(Sketcher.Constraint("Vertical", 44))
sketch3.addConstraint(Sketcher.Constraint("Horizontal", 45))
sketch3.addConstraint(Sketcher.Constraint("Vertical", 46))
sketch3.addConstraint(Sketcher.Constraint("Horizontal", 47))
sketch3.addConstraint(Sketcher.Constraint("Symmetric", 0, 2, 16, 2, -2))
sketch3.addConstraint(Sketcher.Constraint("Symmetric", 14, 2, 18, 2, -2))
sketch3.addConstraint(Sketcher.Constraint("Symmetric", 12, 2, 20, 2, -2))
sketch3.addConstraint(Sketcher.Constraint("Symmetric", 10, 2, 22, 2, -2))
sketch3.addConstraint(Sketcher.Constraint("Symmetric", 8, 2, 24, 2, -2))
sketch3.addConstraint(Sketcher.Constraint("Symmetric", 6, 2, 26, 2, -2))
sketch3.addConstraint(Sketcher.Constraint("Symmetric", 4, 2, 28, 2, -2))
sketch3.addConstraint(Sketcher.Constraint("Symmetric", 2, 2, 30, 2, -2))
sketch3.addConstraint(Sketcher.Constraint("Horizontal", 6, 2, 9, 2))
sketch3.addConstraint(Sketcher.Constraint("Horizontal", 4, 2, 11, 2))
sketch3.addConstraint(Sketcher.Constraint("Horizontal", 2, 2, 13, 2))
sketch3.addConstraint(Sketcher.Constraint("Horizontal", 39, 2, 42, 2))
sketch3.addConstraint(Sketcher.Constraint("Horizontal", 37, 2, 44, 2))
sketch3.addConstraint(Sketcher.Constraint("Horizontal", 35, 2, 46, 2))
sketch3.addConstraint(Sketcher.Constraint("Vertical", 1, 2, 6, 2))
sketch3.addConstraint(Sketcher.Constraint("Vertical", 9, 2, 14, 2))
sketch3.addConstraint(Sketcher.Constraint("Vertical", 34, 2, 39, 2))
sketch3.addConstraint(Sketcher.Constraint("Vertical", 32, 2, 41, 2))
sketch3.addConstraint(Sketcher.Constraint("Equal", 6, 10))
sketch3.addConstraint(Sketcher.Constraint("Equal", 4, 12))
sketch3.addConstraint(Sketcher.Constraint("Equal", 25, 33))
sketch3.addConstraint(Sketcher.Constraint("Equal", 31, 35))
sketch3.addConstraint(Sketcher.Constraint("Equal", 29, 37))
sketch3.addConstraint(Sketcher.Constraint("Equal", 39, 43))
sketch3.addConstraint(Sketcher.Constraint("Equal", 37, 45))
sketch3.addConstraint(Sketcher.Constraint("Equal", 18, 32))
sketch3.addConstraint(Sketcher.Constraint("Equal", 30, 36))
sketch3.addConstraint(Sketcher.Constraint("Equal", 28, 38))
sketch3.addConstraint(Sketcher.Constraint("Equal", 26, 40))
sketch3.addConstraint(Sketcher.Constraint("DistanceY", 1, 2, 1, 1, 10.0))
sketch3.addConstraint(Sketcher.Constraint("DistanceY", 3, 2, 3, 1, 1.0))
sketch3.addConstraint(Sketcher.Constraint("DistanceX", 0, 1, 0, 2, 4.2))
sketch3.addConstraint(Sketcher.Constraint("DistanceX", 2, 1, 2, 2, 2.4))
sketch3.addConstraint(Sketcher.Constraint("DistanceY", 5, 2, 5, 1, 2.5))
sketch3.addConstraint(Sketcher.Constraint("DistanceY", 7, 2, 7, 1, 3.5))
sketch3.addConstraint(Sketcher.Constraint("DistanceY", -1, 1, 0, 2, 50.0))
sketch3.addConstraint(Sketcher.Constraint("DistanceY", 32, 2, -1, 1, 50.0))
sketch3.addConstraint(Sketcher.Constraint("DistanceX", 16, 2, 15, 2, 98.0))
sketch3.addConstraint(Sketcher.Constraint("DistanceX", 32, 2, 24, 2, 35.0))
sketch3.addConstraint(Sketcher.Constraint("DistanceX", 4, 2, 4, 1, 0.75))
sketch3.setExpression("Constraints[125]", "Params.sketch3_height")
sketch3.setExpression("Constraints[126]", "Params.sketch3_height2")
sketch3.setExpression("Constraints[127]", "Params.sketch3_width")
sketch3.setExpression("Constraints[128]", "Params.sketch3_width2")
sketch3.setExpression("Constraints[129]", "Params.sketch3_height3")
pocket2 = body.newObject("PartDesign::Pocket", "Pocket001")
pocket2.Profile = sketch3
pocket2.setExpression("Length", "Params.pocket2_length")
pocket2.Reversed = True

# Sketch on XY plane
sketch4 = body.newObject("Sketcher::SketchObject", "Sketch003")
sketch4.AttachmentSupport = (doc.getObject("XY_Plane"), [""])
sketch4.MapMode = "FlatFace"
sketch4.addGeometry(Part.LineSegment(Vector(-95, -50, 0), Vector(-95, -54, 0)), False)
sketch4.addGeometry(Part.LineSegment(Vector(-95, -54, 0), Vector(-100, -54, 0)), False)
sketch4.addGeometry(Part.LineSegment(Vector(-100, -54, 0), Vector(-100, -50, 0)), False)
sketch4.addGeometry(Part.LineSegment(Vector(-100, -50, 0), Vector(-95, -50, 0)), False)
sketch4.addConstraint(Sketcher.Constraint("Coincident", 0, 2, 1, 1))
sketch4.addConstraint(Sketcher.Constraint("Coincident", 1, 2, 2, 1))
sketch4.addConstraint(Sketcher.Constraint("Coincident", 2, 2, 3, 1))
sketch4.addConstraint(Sketcher.Constraint("Coincident", 3, 2, 0, 1))
sketch4.addConstraint(Sketcher.Constraint("Vertical", 0))
sketch4.addConstraint(Sketcher.Constraint("Horizontal", 1))
sketch4.addConstraint(Sketcher.Constraint("Vertical", 2))
sketch4.addConstraint(Sketcher.Constraint("Horizontal", 3))
sketch4.addConstraint(Sketcher.Constraint("DistanceX", 1, 2, 1, 1, 5.0))
sketch4.addConstraint(Sketcher.Constraint("DistanceY", 0, 2, 0, 1, 4.0))
sketch4.addConstraint(Sketcher.Constraint("DistanceX", 0, 2, -1, 1, 95.0))
sketch4.addConstraint(Sketcher.Constraint("DistanceY", 0, 2, -1, 1, 54.0))
sketch4.setExpression("Constraints[8]", "Params.sketch4_width")
sketch4.setExpression("Constraints[9]", "Params.sketch4_height")
pocket3 = body.newObject("PartDesign::Pocket", "Pocket002")
pocket3.Profile = sketch4
pocket3.setExpression("Length", "Params.pocket3_length")
pocket3.Reversed = True

doc.recompute()
